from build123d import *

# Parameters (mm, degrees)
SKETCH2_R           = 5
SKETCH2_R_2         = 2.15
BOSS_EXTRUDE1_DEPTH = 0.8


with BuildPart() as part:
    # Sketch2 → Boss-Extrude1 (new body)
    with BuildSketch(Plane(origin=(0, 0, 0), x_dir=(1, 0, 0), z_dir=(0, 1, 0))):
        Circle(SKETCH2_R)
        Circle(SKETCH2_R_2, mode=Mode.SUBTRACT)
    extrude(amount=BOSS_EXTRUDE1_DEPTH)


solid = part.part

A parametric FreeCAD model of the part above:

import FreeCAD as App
import Part
import Sketcher

V = App.Vector
Q = App.Units.Quantity

doc = App.newDocument("Part")
params = doc.addObject("Spreadsheet::Sheet", "Params")
for row, (alias, value) in enumerate([
    ("sketch1_diameter", "10 mm"),
    ("sketch1_diameter2", "4.3 mm"),
    ("pad1_length", "0.8 mm"),
], start=1):
    params.set(f"A{row}", alias)
    params.set(f"B{row}", "=" + value)
    params.setAlias(f"B{row}", alias)

body = doc.addObject("PartDesign::Body", "Body")

sketch1 = doc.addObject("Sketcher::SketchObject", "Sketch")
body.addObject(sketch1)
sketch1.AttachmentSupport = (doc.XZ_Plane, [""])
sketch1.MapMode = "FlatFace"
sketch1.addGeometry(Part.Circle(V(0, 0, 0), V(0, 0, 1), 5), False)
sketch1.addGeometry(Part.Circle(V(0, 0, 0), V(0, 0, 1), 2.15), False)
sketch1.addConstraint(Sketcher.Constraint("Coincident", 0, 3, -1, 1))
sketch1.addConstraint(Sketcher.Constraint("Coincident", 1, 3, -1, 1))
sketch1.addConstraint(Sketcher.Constraint("Diameter", 0, Q("10 mm")))
sketch1.addConstraint(Sketcher.Constraint("Diameter", 1, Q("4.3 mm")))
sketch1.setExpression("Constraints[2]", "Params.sketch1_diameter")
sketch1.setExpression("Constraints[3]", "Params.sketch1_diameter2")
pad1 = doc.addObject("PartDesign::Pad", "Pad")
body.addObject(pad1)
pad1.Profile = sketch1
pad1.setExpression("Length", "Params.pad1_length")
pad1.Reversed = True

doc.recompute()
